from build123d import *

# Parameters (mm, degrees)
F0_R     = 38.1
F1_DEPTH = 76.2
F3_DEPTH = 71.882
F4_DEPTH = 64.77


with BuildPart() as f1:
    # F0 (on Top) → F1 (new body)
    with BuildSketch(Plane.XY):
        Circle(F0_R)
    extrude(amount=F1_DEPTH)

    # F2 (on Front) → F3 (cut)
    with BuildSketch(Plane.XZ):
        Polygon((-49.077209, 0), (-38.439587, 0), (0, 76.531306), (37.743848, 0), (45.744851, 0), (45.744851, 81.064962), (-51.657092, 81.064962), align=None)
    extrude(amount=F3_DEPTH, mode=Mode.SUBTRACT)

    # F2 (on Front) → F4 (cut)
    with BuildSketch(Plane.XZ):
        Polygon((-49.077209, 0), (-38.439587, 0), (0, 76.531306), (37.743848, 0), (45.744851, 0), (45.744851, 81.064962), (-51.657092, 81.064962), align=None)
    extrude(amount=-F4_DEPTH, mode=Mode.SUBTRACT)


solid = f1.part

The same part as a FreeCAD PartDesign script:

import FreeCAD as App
import Part
import Sketcher

V = App.Vector
Q = App.Units.Quantity


def add_polygon(sketch, points):
    """Adds a closed chain of lines whose ends are joined by coincident constraints."""
    first, n = sketch.GeometryCount, len(points)
    for a, b in zip(points, points[1:] + points[:1]):
        sketch.addGeometry(Part.LineSegment(App.Vector(*a, 0), App.Vector(*b, 0)), False)
    for i in range(n):
        sketch.addConstraint(Sketcher.Constraint("Coincident", first + i, 2, first + (i + 1) % n, 1))

doc = App.newDocument("Part")
body = doc.addObject("PartDesign::Body", "Body")

# Sketch on XY plane
sketch1 = body.newObject("Sketcher::SketchObject", "Sketch")
sketch1.AttachmentSupport = (doc.getObject("XY_Plane"), [""])
sketch1.MapMode = "FlatFace"
sketch1.addGeometry(Part.Circle(V(0, 0, 0), V(0, 0, 1), 38), False)
sketch1.addConstraint([
    Sketcher.Constraint("Coincident", 0, 3, -1, 1),
    Sketcher.Constraint("Diameter", 0, Q("3 in")),
])
pad1 = body.newObject("PartDesign::Pad", "Pad")
pad1.Profile = sketch1
pad1.Length = Q("3 in")

# Sketch on XZ plane
sketch2 = body.newObject("Sketcher::SketchObject", "Sketch001")
sketch2.AttachmentSupport = (doc.getObject("XZ_Plane"), [""])
sketch2.MapMode = "FlatFace"
add_polygon(sketch2, [(-49, 0), (-38, 0), (0, 77), (38, 0), (46, 0), (46, 81), (-52, 81)])  # lines 0-6
sketch2.addConstraint([
    Sketcher.Constraint("Horizontal", 0),
    Sketcher.Constraint("Horizontal", 3),
    Sketcher.Constraint("Vertical", 4),
    Sketcher.Constraint("Horizontal", 5),
    Sketcher.Constraint("PointOnObject", 0, 2, -1),
    Sketcher.Constraint("PointOnObject", 1, 2, -2),
    Sketcher.Constraint("PointOnObject", 2, 2, -1),
    Sketcher.Constraint("DistanceX", 3, 1, 3, 2, Q("0.3150001 in")),
    Sketcher.Constraint("DistanceY", 4, 1, 4, 2, Q("81.064962 mm")),
    Sketcher.Constraint("Distance", 1, Q("85.642528 mm")),
    Sketcher.Constraint("Distance", 2, Q("85.332519 mm")),
    Sketcher.Constraint("DistanceX", 0, 1, 0, 2, Q("10.637622 mm")),
    Sketcher.Constraint("DistanceX", 5, 2, 5, 1, Q("97.401943 mm")),
    Sketcher.Constraint("DistanceX", -1, 1, 3, 2, Q("45.744851 mm")),
])
pocket1 = body.newObject("PartDesign::Pocket", "Pocket")
pocket1.Profile = sketch2
pocket1.Length = Q("2.83 in")
pocket1.Reversed = True

# Sketch on XZ plane
sketch3 = body.newObject("Sketcher::SketchObject", "Sketch002")
sketch3.AttachmentSupport = (doc.getObject("XZ_Plane"), [""])
sketch3.MapMode = "FlatFace"
add_polygon(sketch3, [(-49, 0), (-38, 0), (0, 77), (38, 0), (46, 0), (46, 81), (-52, 81)])  # lines 0-6
sketch3.addConstraint([
    Sketcher.Constraint("Horizontal", 0),
    Sketcher.Constraint("Horizontal", 3),
    Sketcher.Constraint("Vertical", 4),
    Sketcher.Constraint("Horizontal", 5),
    Sketcher.Constraint("PointOnObject", 0, 2, -1),
    Sketcher.Constraint("PointOnObject", 1, 2, -2),
    Sketcher.Constraint("PointOnObject", 2, 2, -1),
    Sketcher.Constraint("DistanceX", 3, 1, 3, 2, Q("0.3150001 in")),
    Sketcher.Constraint("DistanceY", 4, 1, 4, 2, Q("81.064962 mm")),
    Sketcher.Constraint("Distance", 1, Q("85.642528 mm")),
    Sketcher.Constraint("Distance", 2, Q("85.332519 mm")),
    Sketcher.Constraint("DistanceX", 0, 1, 0, 2, Q("10.637622 mm")),
    Sketcher.Constraint("DistanceX", 5, 2, 5, 1, Q("97.401943 mm")),
    Sketcher.Constraint("DistanceX", -1, 1, 3, 2, Q("45.744851 mm")),
])
pocket2 = body.newObject("PartDesign::Pocket", "Pocket001")
pocket2.Profile = sketch3
pocket2.Length = Q("2.55 in")

doc.recompute()
